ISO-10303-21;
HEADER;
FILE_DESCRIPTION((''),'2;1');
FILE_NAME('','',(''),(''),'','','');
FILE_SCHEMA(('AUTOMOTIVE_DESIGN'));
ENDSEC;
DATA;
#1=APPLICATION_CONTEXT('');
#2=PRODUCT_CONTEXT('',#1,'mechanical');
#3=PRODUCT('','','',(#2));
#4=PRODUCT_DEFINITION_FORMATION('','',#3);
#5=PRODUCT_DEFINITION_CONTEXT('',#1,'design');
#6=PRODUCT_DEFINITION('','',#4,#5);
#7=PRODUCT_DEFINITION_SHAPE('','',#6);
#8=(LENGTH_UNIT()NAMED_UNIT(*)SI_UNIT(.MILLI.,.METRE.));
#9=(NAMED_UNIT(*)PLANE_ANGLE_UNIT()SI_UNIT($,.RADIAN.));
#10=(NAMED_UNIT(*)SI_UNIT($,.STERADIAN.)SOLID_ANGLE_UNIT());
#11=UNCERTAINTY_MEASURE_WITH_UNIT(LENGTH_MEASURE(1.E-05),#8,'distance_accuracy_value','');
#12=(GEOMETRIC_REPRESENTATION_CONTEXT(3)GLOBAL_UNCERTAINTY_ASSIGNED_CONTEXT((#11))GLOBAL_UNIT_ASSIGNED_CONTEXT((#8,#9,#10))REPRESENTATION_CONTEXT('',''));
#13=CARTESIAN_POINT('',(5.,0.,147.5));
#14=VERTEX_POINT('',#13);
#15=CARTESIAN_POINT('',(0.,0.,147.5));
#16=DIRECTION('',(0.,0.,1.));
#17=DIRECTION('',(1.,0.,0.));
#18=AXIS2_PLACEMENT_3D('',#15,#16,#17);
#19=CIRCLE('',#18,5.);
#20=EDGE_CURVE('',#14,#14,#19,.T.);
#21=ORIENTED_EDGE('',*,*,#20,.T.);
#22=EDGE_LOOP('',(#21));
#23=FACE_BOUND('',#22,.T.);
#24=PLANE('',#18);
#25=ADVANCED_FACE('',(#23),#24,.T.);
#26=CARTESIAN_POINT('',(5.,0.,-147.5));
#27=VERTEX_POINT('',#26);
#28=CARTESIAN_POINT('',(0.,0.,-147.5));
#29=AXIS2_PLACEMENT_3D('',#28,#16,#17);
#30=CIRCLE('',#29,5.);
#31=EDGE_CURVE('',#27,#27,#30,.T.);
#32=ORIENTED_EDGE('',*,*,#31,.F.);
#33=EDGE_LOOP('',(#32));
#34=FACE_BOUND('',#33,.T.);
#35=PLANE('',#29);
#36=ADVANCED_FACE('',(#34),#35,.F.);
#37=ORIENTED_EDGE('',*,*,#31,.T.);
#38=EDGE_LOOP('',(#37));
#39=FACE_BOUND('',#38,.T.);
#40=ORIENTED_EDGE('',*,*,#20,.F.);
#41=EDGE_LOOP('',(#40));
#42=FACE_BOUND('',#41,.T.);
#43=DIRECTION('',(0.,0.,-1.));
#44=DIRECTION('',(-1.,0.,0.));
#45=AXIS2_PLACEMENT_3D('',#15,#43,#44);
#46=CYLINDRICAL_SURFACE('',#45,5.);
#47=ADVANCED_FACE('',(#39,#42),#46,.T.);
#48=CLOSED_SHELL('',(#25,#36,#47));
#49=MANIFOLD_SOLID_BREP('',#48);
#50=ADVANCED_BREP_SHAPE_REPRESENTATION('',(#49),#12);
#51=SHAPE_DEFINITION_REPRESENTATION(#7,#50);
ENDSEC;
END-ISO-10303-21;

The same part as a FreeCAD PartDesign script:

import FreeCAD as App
import Part
import Sketcher

V = App.Vector
Q = App.Units.Quantity

doc = App.newDocument("Part")
params = doc.addObject("Spreadsheet::Sheet", "Params")
for row, (alias, value) in enumerate([
    ("sketch1_diameter", "10 mm"),
    ("pad1_length", "295 mm"),
], start=1):
    params.set(f"A{row}", alias)
    params.set(f"B{row}", "=" + value)
    params.setAlias(f"B{row}", alias)

body = doc.addObject("PartDesign::Body", "Body")

# Sketch on XY plane
sketch1 = body.newObject("Sketcher::SketchObject", "Sketch")
sketch1.AttachmentSupport = (doc.getObject("XY_Plane"), [""])
sketch1.MapMode = "FlatFace"
sketch1.addGeometry(Part.Circle(V(0, 0, 0), V(0, 0, 1), 5), False)
sketch1.addConstraint([
    Sketcher.Constraint("Coincident", 0, 3, -1, 1),
    Sketcher.Constraint("Diameter", 0, Q("10 mm")),
])
sketch1.setExpression("Constraints[1]", "Params.sketch1_diameter")
pad1 = body.newObject("PartDesign::Pad", "Pad")
pad1.Profile = sketch1
pad1.setExpression("Length", "Params.pad1_length")
pad1.Midplane = True

doc.recompute()
